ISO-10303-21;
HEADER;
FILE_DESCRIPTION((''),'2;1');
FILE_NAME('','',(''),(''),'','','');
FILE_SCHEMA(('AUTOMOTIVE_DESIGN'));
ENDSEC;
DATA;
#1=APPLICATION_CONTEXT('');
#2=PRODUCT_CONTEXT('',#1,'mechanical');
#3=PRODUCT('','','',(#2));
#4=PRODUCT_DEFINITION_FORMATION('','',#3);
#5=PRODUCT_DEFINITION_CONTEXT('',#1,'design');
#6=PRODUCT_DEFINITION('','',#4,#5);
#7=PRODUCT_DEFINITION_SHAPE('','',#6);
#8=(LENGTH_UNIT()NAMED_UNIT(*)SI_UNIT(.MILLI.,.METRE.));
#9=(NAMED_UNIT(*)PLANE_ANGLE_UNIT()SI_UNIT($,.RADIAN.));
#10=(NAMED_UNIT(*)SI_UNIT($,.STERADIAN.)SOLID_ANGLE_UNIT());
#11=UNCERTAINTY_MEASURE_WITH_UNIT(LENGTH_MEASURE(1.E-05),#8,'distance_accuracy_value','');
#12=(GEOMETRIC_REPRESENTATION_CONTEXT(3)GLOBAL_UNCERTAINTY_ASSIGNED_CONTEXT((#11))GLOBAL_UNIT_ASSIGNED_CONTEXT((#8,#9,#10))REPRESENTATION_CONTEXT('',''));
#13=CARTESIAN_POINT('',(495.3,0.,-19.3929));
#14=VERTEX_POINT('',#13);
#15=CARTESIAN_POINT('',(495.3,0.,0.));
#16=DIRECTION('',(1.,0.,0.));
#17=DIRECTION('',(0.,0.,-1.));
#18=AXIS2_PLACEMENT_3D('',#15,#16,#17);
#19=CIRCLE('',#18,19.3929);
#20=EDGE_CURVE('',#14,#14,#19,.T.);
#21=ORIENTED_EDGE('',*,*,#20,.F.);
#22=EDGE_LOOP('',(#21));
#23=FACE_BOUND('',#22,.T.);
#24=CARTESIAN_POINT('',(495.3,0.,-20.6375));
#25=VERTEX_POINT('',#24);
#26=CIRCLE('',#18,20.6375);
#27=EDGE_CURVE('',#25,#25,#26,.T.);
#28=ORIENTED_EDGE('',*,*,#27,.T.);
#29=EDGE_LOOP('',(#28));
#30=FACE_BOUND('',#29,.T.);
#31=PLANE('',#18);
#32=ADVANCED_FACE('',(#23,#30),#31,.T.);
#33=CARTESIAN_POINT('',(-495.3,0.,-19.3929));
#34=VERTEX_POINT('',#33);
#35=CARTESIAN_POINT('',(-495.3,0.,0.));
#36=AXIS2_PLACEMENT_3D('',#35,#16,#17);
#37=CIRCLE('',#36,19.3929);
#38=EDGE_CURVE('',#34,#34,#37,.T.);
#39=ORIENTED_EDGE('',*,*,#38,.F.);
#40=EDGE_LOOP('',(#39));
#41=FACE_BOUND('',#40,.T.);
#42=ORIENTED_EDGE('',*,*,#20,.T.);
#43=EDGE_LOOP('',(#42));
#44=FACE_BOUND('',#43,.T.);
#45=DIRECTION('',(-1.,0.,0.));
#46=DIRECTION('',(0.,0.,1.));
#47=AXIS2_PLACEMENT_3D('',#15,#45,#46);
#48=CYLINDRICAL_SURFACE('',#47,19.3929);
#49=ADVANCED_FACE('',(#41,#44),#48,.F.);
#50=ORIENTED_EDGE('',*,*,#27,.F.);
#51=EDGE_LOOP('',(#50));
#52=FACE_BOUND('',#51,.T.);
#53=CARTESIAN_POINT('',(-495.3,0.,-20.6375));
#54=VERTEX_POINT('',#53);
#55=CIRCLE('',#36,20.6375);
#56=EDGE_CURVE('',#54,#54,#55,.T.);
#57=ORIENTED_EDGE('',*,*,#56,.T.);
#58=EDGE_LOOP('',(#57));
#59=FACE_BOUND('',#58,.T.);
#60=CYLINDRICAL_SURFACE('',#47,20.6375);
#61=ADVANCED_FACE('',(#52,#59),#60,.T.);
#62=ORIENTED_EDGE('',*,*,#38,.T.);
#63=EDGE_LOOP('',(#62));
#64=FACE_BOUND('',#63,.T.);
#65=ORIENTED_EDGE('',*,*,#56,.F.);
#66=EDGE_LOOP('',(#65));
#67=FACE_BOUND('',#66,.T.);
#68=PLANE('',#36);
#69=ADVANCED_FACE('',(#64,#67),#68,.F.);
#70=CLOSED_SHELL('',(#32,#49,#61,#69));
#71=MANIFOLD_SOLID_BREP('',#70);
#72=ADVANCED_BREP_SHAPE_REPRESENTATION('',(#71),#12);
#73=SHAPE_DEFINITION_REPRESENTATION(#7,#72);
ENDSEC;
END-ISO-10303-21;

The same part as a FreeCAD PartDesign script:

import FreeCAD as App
import Part
import Sketcher

V = App.Vector
Q = App.Units.Quantity

doc = App.newDocument("Part")
body = doc.addObject("PartDesign::Body", "Body")

# Sketch on YZ plane
sketch1 = doc.addObject("Sketcher::SketchObject", "Sketch")
body.addObject(sketch1)
sketch1.AttachmentSupport = (doc.YZ_Plane, [""])
sketch1.MapMode = "FlatFace"
sketch1.addGeometry(Part.Circle(V(0, 0, 0), V(0, 0, 1), 21), False)
sketch1.addGeometry(Part.Circle(V(0, 0, 0), V(0, 0, 1), 19), False)
sketch1.addConstraint(Sketcher.Constraint("Coincident", 0, 3, -1, 1))
sketch1.addConstraint(Sketcher.Constraint("Coincident", 1, 3, -1, 1))
sketch1.addConstraint(Sketcher.Constraint("Diameter", 0, Q("1.625 in")))
sketch1.addConstraint(Sketcher.Constraint("Diameter", 1, Q("1.527 in")))
pad1 = doc.addObject("PartDesign::Pad", "Pad")
body.addObject(pad1)
pad1.Profile = sketch1
pad1.Length = Q("39 in")
pad1.Midplane = True

doc.recompute()
